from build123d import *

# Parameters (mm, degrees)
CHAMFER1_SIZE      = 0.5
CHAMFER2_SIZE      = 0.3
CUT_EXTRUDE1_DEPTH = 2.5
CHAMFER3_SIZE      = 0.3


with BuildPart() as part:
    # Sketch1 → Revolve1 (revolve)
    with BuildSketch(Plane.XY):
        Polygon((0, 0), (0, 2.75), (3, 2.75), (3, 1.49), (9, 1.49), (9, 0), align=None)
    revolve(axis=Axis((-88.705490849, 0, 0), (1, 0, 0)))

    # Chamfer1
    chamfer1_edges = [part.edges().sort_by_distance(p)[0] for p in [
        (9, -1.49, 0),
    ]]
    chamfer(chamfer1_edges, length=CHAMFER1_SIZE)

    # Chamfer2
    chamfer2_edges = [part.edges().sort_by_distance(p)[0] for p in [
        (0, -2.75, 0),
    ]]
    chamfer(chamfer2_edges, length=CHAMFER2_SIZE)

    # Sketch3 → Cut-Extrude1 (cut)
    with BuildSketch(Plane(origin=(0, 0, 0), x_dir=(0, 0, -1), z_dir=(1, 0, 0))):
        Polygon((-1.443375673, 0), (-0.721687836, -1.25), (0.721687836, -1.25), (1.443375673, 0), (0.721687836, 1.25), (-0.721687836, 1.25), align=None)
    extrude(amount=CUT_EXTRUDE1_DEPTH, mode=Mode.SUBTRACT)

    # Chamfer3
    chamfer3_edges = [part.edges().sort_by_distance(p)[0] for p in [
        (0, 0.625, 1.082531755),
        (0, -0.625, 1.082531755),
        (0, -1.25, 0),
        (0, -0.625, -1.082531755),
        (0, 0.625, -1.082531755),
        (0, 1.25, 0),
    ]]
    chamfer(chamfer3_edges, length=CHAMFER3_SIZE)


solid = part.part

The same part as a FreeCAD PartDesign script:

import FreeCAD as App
import Part
import Sketcher

V = App.Vector
Q = App.Units.Quantity


def edges_at(feature, points):
    """Names of the edges that pass closest to the given points."""
    edges = feature.Shape.Edges
    near = lambda p: min(range(len(edges)), key=lambda i: edges[i].distToShape(Part.Vertex(*p))[0])
    return sorted({f"Edge{near(p) + 1}" for p in points})

doc = App.newDocument("Part")
body = doc.addObject("PartDesign::Body", "Body")

sketch1 = body.newObject("Sketcher::SketchObject", "Sketch")
sketch1.AttachmentSupport = (doc.getObject("XY_Plane"), [""])
sketch1.MapMode = "FlatFace"
sketch1.addGeometry([
    Part.LineSegment(V(0, 2.8, 0), V(0, 0, 0)),
    Part.LineSegment(V(0, 0, 0), V(9, 0, 0)),
    Part.LineSegment(V(9, 0, 0), V(9, 1.5, 0)),
    Part.LineSegment(V(9, 1.5, 0), V(3, 1.5, 0)),
    Part.LineSegment(V(3, 1.5, 0), V(3, 2.8, 0)),
    Part.LineSegment(V(3, 2.8, 0), V(0, 2.8, 0)),
], False)
sketch1.addConstraint([
    Sketcher.Constraint("Coincident", 0, 2, 1, 1),
    Sketcher.Constraint("Coincident", 1, 2, 2, 1),
    Sketcher.Constraint("Coincident", 2, 2, 3, 1),
    Sketcher.Constraint("Coincident", 3, 2, 4, 1),
    Sketcher.Constraint("Coincident", 4, 2, 5, 1),
    Sketcher.Constraint("Coincident", 5, 2, 0, 1),
    Sketcher.Constraint("Vertical", 0),
    Sketcher.Constraint("Horizontal", 1),
    Sketcher.Constraint("Vertical", 2),
    Sketcher.Constraint("Horizontal", 3),
    Sketcher.Constraint("Vertical", 4),
    Sketcher.Constraint("Horizontal", 5),
    Sketcher.Constraint("Coincident", 0, 2, -1, 1),
    Sketcher.Constraint("DistanceX", 1, 1, 1, 2, 9.0),
    Sketcher.Constraint("DistanceX", 3, 2, 3, 1, 6.0),
    Sketcher.Constraint("DistanceY", 0, 2, 0, 1, 2.75),
    Sketcher.Constraint("DistanceY", 2, 1, 2, 2, 1.49),
])
revolution = body.newObject("PartDesign::Revolution", "Revolution")
revolution.Profile = sketch1
revolution.ReferenceAxis = (sketch1, ["H_Axis"])
revolution.Angle = 360
doc.recompute()

chamfer = body.newObject("PartDesign::Chamfer", "Chamfer")
chamfer.Base = (revolution, edges_at(revolution, [(9, -1.49, 0)]))
chamfer.Size = 0.5
doc.recompute()

chamfer2 = body.newObject("PartDesign::Chamfer", "Chamfer001")
chamfer2.Base = (chamfer, edges_at(chamfer, [(0, -2.75, 0)]))
chamfer2.Size = 0.3

sketch2 = body.newObject("Sketcher::SketchObject", "Sketch001")
sketch2.AttachmentSupport = (doc.getObject("YZ_Plane"), [""])
sketch2.MapMode = "FlatFace"
sketch2.addGeometry([
    Part.LineSegment(V(0, 1.4, 0), V(-1.2, 0.7, 0)),
    Part.LineSegment(V(-1.2, 0.7, 0), V(-1.2, -0.7, 0)),
    Part.LineSegment(V(-1.2, -0.7, 0), V(0, -1.4, 0)),
    Part.LineSegment(V(0, -1.4, 0), V(1.2, -0.7, 0)),
    Part.LineSegment(V(1.2, -0.7, 0), V(1.2, 0.7, 0)),
    Part.LineSegment(V(1.2, 0.7, 0), V(0, 1.4, 0)),
], False)
sketch2.addConstraint([
    Sketcher.Constraint("Coincident", 0, 2, 1, 1),
    Sketcher.Constraint("Coincident", 1, 2, 2, 1),
    Sketcher.Constraint("Coincident", 2, 2, 3, 1),
    Sketcher.Constraint("Coincident", 3, 2, 4, 1),
    Sketcher.Constraint("Coincident", 4, 2, 5, 1),
    Sketcher.Constraint("Coincident", 5, 2, 0, 1),
    Sketcher.Constraint("Vertical", 1),
    Sketcher.Constraint("Vertical", 4),
    Sketcher.Constraint("Symmetric", 0, 2, 3, 2, -1, 1),
    Sketcher.Constraint("Symmetric", 2, 2, 5, 2, -1, 1),
    Sketcher.Constraint("PointOnObject", 2, 2, -2),
    Sketcher.Constraint("Parallel", 2, 5),
    Sketcher.Constraint("Horizontal", 1, 2, 3, 2),
    Sketcher.Constraint("Angle", 0, Q("-150 deg")),
    Sketcher.Constraint("DistanceX", 1, 2, 3, 2, 2.5),
    Sketcher.Constraint("DistanceY", 1, 2, 1, 1, 1.443376),
])
pocket1 = body.newObject("PartDesign::Pocket", "Pocket")
pocket1.Profile = sketch2
pocket1.Length = 2.5
pocket1.Reversed = True
doc.recompute()

chamfer3 = body.newObject("PartDesign::Chamfer", "Chamfer002")
chamfer3.Base = (pocket1, edges_at(pocket1, [
    (0, 0.625, 1.083),
    (0, -0.625, 1.083),
    (0, -1.25, 0),
    (0, -0.625, -1.083),
    (0, 0.625, -1.083),
    (0, 1.25, 0),
]))
chamfer3.Size = 0.3

doc.recompute()
